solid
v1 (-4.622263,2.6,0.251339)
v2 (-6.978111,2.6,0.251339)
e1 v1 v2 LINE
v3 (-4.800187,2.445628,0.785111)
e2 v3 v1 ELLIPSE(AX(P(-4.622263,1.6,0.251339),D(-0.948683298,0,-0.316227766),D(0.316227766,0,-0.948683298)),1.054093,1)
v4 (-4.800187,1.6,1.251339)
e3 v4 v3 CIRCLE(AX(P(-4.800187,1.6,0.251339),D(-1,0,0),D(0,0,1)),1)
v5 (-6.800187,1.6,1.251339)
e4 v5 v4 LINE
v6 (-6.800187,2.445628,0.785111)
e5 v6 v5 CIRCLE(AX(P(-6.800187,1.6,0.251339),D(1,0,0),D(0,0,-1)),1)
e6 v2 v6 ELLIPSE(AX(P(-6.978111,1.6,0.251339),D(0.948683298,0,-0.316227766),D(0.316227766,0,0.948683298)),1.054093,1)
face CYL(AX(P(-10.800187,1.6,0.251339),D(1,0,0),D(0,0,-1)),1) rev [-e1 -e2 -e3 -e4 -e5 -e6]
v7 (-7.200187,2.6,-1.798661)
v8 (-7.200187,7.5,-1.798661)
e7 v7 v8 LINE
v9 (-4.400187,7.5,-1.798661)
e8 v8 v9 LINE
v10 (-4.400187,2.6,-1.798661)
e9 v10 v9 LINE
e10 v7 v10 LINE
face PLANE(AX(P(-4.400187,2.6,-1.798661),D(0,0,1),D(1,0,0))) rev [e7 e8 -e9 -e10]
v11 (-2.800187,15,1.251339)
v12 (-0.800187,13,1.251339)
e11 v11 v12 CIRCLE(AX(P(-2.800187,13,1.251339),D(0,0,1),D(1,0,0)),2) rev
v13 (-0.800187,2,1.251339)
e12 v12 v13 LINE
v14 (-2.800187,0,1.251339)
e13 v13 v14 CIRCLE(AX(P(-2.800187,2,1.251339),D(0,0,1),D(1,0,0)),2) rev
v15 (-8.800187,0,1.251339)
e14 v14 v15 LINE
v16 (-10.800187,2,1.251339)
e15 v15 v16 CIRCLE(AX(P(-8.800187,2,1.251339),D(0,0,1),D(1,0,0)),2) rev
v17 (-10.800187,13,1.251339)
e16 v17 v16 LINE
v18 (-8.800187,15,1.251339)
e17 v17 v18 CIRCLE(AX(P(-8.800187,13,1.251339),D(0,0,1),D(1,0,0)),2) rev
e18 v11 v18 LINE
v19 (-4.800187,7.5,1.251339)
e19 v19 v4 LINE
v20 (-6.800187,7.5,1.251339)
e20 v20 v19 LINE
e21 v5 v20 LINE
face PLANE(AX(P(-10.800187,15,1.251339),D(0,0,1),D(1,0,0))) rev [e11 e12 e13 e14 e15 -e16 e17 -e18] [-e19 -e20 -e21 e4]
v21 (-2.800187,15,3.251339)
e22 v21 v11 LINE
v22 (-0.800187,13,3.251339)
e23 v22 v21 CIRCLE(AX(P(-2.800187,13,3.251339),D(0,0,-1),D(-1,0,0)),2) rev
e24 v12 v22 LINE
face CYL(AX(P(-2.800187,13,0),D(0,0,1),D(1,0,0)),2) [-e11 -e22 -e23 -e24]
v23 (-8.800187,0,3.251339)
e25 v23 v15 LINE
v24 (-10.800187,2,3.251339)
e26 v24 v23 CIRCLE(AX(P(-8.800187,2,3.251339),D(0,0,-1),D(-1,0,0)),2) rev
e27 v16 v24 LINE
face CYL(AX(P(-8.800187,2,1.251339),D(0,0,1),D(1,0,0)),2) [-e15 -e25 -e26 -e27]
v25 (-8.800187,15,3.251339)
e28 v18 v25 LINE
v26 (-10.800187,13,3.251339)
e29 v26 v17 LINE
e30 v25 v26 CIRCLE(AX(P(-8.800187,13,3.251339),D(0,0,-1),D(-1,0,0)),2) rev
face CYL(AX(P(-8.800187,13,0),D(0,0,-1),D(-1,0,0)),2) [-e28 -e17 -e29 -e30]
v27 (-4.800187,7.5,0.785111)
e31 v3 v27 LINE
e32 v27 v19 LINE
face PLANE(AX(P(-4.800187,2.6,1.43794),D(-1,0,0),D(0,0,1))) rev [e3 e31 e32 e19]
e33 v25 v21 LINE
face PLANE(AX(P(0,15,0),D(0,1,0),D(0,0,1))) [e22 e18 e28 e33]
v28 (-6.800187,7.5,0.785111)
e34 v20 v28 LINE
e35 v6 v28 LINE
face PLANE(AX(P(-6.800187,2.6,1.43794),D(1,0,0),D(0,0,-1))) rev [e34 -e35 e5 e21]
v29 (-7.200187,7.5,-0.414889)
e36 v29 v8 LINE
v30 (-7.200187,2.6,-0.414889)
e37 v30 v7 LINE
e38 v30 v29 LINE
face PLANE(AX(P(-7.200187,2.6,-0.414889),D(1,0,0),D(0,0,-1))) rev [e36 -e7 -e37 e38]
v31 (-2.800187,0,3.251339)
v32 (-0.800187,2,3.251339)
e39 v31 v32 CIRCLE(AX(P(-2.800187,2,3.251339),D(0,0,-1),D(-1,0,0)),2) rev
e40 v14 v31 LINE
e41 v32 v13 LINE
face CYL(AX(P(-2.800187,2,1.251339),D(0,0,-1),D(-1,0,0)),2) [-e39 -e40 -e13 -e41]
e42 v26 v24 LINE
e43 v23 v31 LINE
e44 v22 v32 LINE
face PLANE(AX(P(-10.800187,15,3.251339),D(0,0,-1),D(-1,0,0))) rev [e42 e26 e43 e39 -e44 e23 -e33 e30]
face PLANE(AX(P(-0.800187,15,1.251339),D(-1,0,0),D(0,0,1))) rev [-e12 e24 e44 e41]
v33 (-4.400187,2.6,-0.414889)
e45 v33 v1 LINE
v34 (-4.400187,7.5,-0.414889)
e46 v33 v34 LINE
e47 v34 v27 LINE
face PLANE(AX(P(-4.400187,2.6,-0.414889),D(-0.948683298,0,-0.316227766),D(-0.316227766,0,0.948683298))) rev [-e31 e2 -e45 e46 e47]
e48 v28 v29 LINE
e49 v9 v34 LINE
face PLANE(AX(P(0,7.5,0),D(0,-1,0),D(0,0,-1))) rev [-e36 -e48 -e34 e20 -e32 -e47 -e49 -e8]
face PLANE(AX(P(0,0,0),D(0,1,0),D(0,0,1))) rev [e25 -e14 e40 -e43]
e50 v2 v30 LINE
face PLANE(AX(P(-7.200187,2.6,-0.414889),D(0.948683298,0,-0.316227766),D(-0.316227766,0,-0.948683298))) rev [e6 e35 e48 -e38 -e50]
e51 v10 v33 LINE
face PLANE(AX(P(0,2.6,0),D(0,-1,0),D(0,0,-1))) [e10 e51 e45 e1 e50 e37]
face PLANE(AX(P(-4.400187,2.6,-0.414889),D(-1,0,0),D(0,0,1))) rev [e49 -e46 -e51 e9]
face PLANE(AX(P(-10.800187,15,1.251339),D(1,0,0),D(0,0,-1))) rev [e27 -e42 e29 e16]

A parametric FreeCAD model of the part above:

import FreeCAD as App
import Part
import Sketcher


def edges_at(feature, points):
    """Names of the edges that pass closest to the given points."""
    edges = feature.Shape.Edges
    near = lambda p: min(range(len(edges)), key=lambda i: edges[i].distToShape(Part.Vertex(*p))[0])
    return sorted({f"Edge{near(p) + 1}" for p in points})

doc = App.newDocument("Part")
body = doc.addObject("PartDesign::Body", "Body")

# Sketch on XZ plane
sketch1 = body.newObject("Sketcher::SketchObject", "Sketch")
sketch1.AttachmentSupport = (doc.getObject("XZ_Plane"), [""])
sketch1.MapMode = "FlatFace"
sketch1.addGeometry(Part.LineSegment(App.Vector(-10.8, 1.3, 0), App.Vector(-10.8, 3.3, 0)), False)
sketch1.addGeometry(Part.LineSegment(App.Vector(-10.8, 3.3, 0), App.Vector(-0.8, 3.3, 0)), False)
sketch1.addGeometry(Part.LineSegment(App.Vector(-0.8, 3.3, 0), App.Vector(-0.8, 1.3, 0)), False)
sketch1.addGeometry(Part.LineSegment(App.Vector(-0.8, 1.3, 0), App.Vector(-10.8, 1.3, 0)), False)
sketch1.addConstraint(Sketcher.Constraint("Coincident", 0, 2, 1, 1))
sketch1.addConstraint(Sketcher.Constraint("Coincident", 1, 2, 2, 1))
sketch1.addConstraint(Sketcher.Constraint("Coincident", 2, 2, 3, 1))
sketch1.addConstraint(Sketcher.Constraint("Coincident", 3, 2, 0, 1))
sketch1.addConstraint(Sketcher.Constraint("Vertical", 0))
sketch1.addConstraint(Sketcher.Constraint("Horizontal", 1))
sketch1.addConstraint(Sketcher.Constraint("Vertical", 2))
sketch1.addConstraint(Sketcher.Constraint("Horizontal", 3))
sketch1.addConstraint(Sketcher.Constraint("DistanceX", 1, 1, 1, 2, 10.0))
sketch1.addConstraint(Sketcher.Constraint("DistanceY", 0, 1, 0, 2, 2.0))
sketch1.addConstraint(Sketcher.Constraint("DistanceY", -1, 1, 0, 2, 3.251339))
sketch1.addConstraint(Sketcher.Constraint("DistanceX", 0, 2, -1, 1, 10.800187))
pad1 = body.newObject("PartDesign::Pad", "Pad")
pad1.Profile = sketch1
pad1.Length = 15
pad1.Reversed = True

# Sketch on XZ plane
sketch2 = body.newObject("Sketcher::SketchObject", "Sketch001")
sketch2.AttachmentSupport = (doc.getObject("XZ_Plane"), [""])
sketch2.MapMode = "FlatFace"
sketch2.AttachmentOffset = App.Placement(App.Vector(0, 0, -7.5), App.Rotation())
sketch2.addGeometry(Part.LineSegment(App.Vector(-4.8, 0.8, 0), App.Vector(-4.8, 1.4, 0)), False)
sketch2.addGeometry(Part.LineSegment(App.Vector(-4.8, 1.4, 0), App.Vector(-6.8, 1.4, 0)), False)
sketch2.addGeometry(Part.LineSegment(App.Vector(-6.8, 1.4, 0), App.Vector(-6.8, 0.8, 0)), False)
sketch2.addGeometry(Part.LineSegment(App.Vector(-6.8, 0.8, 0), App.Vector(-7.2, -0.4, 0)), False)
sketch2.addGeometry(Part.LineSegment(App.Vector(-7.2, -0.4, 0), App.Vector(-7.2, -1.8, 0)), False)
sketch2.addGeometry(Part.LineSegment(App.Vector(-7.2, -1.8, 0), App.Vector(-4.4, -1.8, 0)), False)
sketch2.addGeometry(Part.LineSegment(App.Vector(-4.4, -1.8, 0), App.Vector(-4.4, -0.4, 0)), False)
sketch2.addGeometry(Part.LineSegment(App.Vector(-4.4, -0.4, 0), App.Vector(-4.8, 0.8, 0)), False)
sketch2.addConstraint(Sketcher.Constraint("Coincident", 0, 2, 1, 1))
sketch2.addConstraint(Sketcher.Constraint("Coincident", 1, 2, 2, 1))
sketch2.addConstraint(Sketcher.Constraint("Coincident", 2, 2, 3, 1))
sketch2.addConstraint(Sketcher.Constraint("Coincident", 3, 2, 4, 1))
sketch2.addConstraint(Sketcher.Constraint("Coincident", 4, 2, 5, 1))
sketch2.addConstraint(Sketcher.Constraint("Coincident", 5, 2, 6, 1))
sketch2.addConstraint(Sketcher.Constraint("Coincident", 6, 2, 7, 1))
sketch2.addConstraint(Sketcher.Constraint("Coincident", 7, 2, 0, 1))
sketch2.addConstraint(Sketcher.Constraint("Vertical", 0))
sketch2.addConstraint(Sketcher.Constraint("Horizontal", 1))
sketch2.addConstraint(Sketcher.Constraint("Vertical", 2))
sketch2.addConstraint(Sketcher.Constraint("Vertical", 4))
sketch2.addConstraint(Sketcher.Constraint("Horizontal", 5))
sketch2.addConstraint(Sketcher.Constraint("Vertical", 6))
sketch2.addConstraint(Sketcher.Constraint("Horizontal", 3, 2, 6, 2))
sketch2.addConstraint(Sketcher.Constraint("Horizontal", 2, 2, 7, 2))
sketch2.addConstraint(Sketcher.Constraint("Equal", 3, 7))
sketch2.addConstraint(Sketcher.Constraint("DistanceX", 1, 2, 1, 1, 2.0))
sketch2.addConstraint(Sketcher.Constraint("DistanceX", 5, 1, 5, 2, 2.8))
sketch2.addConstraint(Sketcher.Constraint("DistanceY", 3, 2, 2, 2, 1.2))
sketch2.addConstraint(Sketcher.Constraint("DistanceY", 0, 1, 0, 2, 0.652828))
sketch2.addConstraint(Sketcher.Constraint("DistanceY", 4, 2, 1, 2, 3.236601))
sketch2.addConstraint(Sketcher.Constraint("DistanceY", -1, 1, 0, 2, 1.43794))
sketch2.addConstraint(Sketcher.Constraint("DistanceX", 0, 2, -1, 1, 4.800187))
pad2 = body.newObject("PartDesign::Pad", "Pad001")
pad2.Profile = sketch2
pad2.Length = 4.9
doc.recompute()

fillet = body.newObject("PartDesign::Fillet", "Fillet")
fillet.Base = (pad2, edges_at(pad2, [
    (-10.8, 15, 2.251),
    (-0.8, 15, 2.251),
    (-10.8, 0, 2.251),
    (-0.8, 0, 2.251),
]))
fillet.Radius = 2
doc.recompute()

fillet2 = body.newObject("PartDesign::Fillet", "Fillet001")
fillet2.Base = (fillet, edges_at(fillet, [(-5.8, 2.6, 1.251)]))
fillet2.Radius = 1

doc.recompute()
